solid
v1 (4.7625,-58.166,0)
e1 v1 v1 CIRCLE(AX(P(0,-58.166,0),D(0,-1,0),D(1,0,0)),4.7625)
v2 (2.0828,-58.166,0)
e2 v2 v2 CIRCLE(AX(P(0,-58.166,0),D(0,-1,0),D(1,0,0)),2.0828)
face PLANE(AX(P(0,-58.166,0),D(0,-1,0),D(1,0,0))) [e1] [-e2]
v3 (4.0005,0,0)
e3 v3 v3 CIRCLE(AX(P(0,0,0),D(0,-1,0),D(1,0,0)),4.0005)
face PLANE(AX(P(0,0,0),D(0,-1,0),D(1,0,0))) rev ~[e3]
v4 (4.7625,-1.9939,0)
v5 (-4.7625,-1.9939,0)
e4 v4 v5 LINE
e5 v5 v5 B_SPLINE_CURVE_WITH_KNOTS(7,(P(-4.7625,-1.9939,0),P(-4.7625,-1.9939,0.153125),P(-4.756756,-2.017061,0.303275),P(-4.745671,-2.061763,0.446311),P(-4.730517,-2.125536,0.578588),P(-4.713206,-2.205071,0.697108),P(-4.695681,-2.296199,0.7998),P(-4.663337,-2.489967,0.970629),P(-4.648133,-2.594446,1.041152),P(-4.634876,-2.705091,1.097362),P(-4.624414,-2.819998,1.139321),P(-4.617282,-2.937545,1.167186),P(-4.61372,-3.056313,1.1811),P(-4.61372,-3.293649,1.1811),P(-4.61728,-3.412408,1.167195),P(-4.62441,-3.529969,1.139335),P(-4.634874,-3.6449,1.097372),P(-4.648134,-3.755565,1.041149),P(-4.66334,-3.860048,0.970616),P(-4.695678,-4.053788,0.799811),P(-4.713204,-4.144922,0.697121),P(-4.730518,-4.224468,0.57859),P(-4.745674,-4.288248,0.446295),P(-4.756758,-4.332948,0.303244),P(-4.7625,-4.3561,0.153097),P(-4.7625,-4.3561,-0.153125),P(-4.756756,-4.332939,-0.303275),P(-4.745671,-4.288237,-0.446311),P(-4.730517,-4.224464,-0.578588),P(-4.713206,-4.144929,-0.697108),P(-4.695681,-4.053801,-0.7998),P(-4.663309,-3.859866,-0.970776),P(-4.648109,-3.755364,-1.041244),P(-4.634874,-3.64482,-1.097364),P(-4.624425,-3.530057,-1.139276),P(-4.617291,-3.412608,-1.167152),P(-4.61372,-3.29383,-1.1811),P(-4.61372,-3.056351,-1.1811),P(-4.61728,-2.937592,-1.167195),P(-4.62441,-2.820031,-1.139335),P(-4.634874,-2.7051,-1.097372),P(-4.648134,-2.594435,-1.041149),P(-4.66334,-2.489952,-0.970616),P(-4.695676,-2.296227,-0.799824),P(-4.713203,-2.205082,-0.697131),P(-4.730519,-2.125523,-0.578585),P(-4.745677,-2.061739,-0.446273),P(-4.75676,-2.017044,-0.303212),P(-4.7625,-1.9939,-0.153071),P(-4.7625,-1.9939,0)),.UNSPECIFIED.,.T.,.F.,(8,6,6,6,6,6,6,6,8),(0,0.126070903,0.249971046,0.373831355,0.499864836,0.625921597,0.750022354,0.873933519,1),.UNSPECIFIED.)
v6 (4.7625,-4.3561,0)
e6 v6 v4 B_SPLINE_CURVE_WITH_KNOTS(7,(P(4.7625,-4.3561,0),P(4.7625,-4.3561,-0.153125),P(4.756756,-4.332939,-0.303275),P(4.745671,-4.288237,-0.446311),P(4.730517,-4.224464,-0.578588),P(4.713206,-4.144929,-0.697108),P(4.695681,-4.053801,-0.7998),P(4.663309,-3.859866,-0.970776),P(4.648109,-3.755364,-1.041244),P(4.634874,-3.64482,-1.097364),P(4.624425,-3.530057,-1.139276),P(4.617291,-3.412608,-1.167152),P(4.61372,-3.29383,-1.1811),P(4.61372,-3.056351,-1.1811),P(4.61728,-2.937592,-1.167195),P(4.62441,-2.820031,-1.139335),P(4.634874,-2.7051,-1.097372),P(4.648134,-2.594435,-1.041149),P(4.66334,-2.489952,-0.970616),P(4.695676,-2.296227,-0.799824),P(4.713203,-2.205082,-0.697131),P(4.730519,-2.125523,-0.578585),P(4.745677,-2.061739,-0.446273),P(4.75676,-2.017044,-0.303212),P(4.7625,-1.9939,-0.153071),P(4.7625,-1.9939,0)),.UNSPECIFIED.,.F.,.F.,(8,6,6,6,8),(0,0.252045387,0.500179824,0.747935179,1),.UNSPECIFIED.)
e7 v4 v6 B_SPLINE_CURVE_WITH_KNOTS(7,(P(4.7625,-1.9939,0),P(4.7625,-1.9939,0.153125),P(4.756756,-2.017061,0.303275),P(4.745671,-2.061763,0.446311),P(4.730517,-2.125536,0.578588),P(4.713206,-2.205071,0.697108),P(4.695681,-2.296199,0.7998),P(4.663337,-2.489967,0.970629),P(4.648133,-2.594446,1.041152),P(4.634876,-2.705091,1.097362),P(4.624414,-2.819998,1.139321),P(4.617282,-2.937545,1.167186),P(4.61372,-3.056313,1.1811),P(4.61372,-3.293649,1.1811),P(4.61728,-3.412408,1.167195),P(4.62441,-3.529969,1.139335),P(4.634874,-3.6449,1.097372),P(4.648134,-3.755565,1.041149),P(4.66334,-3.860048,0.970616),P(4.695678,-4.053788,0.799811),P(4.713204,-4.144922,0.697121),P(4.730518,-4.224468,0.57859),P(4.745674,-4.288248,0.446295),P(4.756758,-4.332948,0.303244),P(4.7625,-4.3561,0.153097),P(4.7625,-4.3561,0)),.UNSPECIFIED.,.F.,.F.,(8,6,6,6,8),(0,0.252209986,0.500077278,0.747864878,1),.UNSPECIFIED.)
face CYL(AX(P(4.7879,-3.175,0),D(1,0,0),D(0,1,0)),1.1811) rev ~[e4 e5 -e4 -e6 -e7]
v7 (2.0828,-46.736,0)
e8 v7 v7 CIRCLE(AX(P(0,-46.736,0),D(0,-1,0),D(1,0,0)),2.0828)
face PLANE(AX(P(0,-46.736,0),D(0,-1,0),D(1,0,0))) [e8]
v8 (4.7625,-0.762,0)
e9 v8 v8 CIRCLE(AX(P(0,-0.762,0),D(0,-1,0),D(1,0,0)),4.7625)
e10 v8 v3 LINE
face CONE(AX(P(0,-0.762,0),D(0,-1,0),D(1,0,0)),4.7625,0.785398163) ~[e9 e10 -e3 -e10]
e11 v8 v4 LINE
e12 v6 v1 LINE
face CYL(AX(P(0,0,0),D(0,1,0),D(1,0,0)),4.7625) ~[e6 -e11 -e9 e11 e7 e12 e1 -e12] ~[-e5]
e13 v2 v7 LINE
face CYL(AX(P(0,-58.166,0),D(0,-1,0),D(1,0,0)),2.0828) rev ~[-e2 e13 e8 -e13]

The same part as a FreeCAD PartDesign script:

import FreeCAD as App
import Part
import Sketcher
from FreeCAD import Vector
Q = App.Units.Quantity


def edges_at(feature, points):
    """Names of the edges that pass closest to the given points."""
    edges = feature.Shape.Edges
    near = lambda p: min(range(len(edges)), key=lambda i: edges[i].distToShape(Part.Vertex(*p))[0])
    return sorted({f"Edge{near(p) + 1}" for p in points})

doc = App.newDocument("Part")
body = doc.addObject("PartDesign::Body", "Body")

# Sketch on XZ plane
sketch1 = body.newObject("Sketcher::SketchObject", "Sketch")
sketch1.AttachmentSupport = (doc.getObject("XZ_Plane"), [""])
sketch1.MapMode = "FlatFace"
sketch1.addGeometry(Part.Circle(Vector(0, 0, 0), Vector(0, 0, 1), 4.7625), False)
sketch1.addConstraint(Sketcher.Constraint("Coincident", 0, 3, -1, 1))
sketch1.addConstraint(Sketcher.Constraint("Diameter", 0, Q("0.375 in")))
pad1 = body.newObject("PartDesign::Pad", "Pad")
pad1.Profile = sketch1
pad1.Length = Q("2.29 in")

# Sketch on XZ plane
sketch2 = body.newObject("Sketcher::SketchObject", "Sketch001")
sketch2.AttachmentSupport = (doc.getObject("XZ_Plane"), [""])
sketch2.MapMode = "FlatFace"
sketch2.AttachmentOffset = App.Placement(Vector(0, 0, 2.29 * 25.4), App.Rotation())
sketch2.addGeometry(Part.Circle(Vector(0, 0, 0), Vector(0, 0, 1), 2.0828), False)
sketch2.addConstraint(Sketcher.Constraint("Coincident", 0, 3, -1, 1))
sketch2.addConstraint(Sketcher.Constraint("Diameter", 0, Q("0.164 in")))
pocket1 = body.newObject("PartDesign::Pocket", "Pocket")
pocket1.Profile = sketch2
pocket1.Length = Q("0.45 in")

# Sketch on YZ plane
sketch3 = body.newObject("Sketcher::SketchObject", "Sketch002")
sketch3.AttachmentSupport = (doc.getObject("YZ_Plane"), [""])
sketch3.MapMode = "FlatFace"
sketch3.AttachmentOffset = App.Placement(Vector(0, 0, 0.1885 * 25.4), App.Rotation())
sketch3.addGeometry(Part.Circle(Vector(-3.175, 0, 0), Vector(0, 0, 1), 1.1811), False)
sketch3.addConstraint(Sketcher.Constraint("PointOnObject", 0, 3, -1))
sketch3.addConstraint(Sketcher.Constraint("Diameter", 0, Q("0.093 in")))
sketch3.addConstraint(Sketcher.Constraint("DistanceX", 0, 3, -1, 1, Q("0.125 in")))
pocket2 = body.newObject("PartDesign::Pocket", "Pocket001")
pocket2.Profile = sketch3
pocket2.Length = Q("0.4 in")
doc.recompute()

chamfer = body.newObject("PartDesign::Chamfer", "Chamfer")
chamfer.Base = (pocket2, edges_at(pocket2, [(-4.763, 0, 0)]))
chamfer.Size = Q("0.03 in")

doc.recompute()
